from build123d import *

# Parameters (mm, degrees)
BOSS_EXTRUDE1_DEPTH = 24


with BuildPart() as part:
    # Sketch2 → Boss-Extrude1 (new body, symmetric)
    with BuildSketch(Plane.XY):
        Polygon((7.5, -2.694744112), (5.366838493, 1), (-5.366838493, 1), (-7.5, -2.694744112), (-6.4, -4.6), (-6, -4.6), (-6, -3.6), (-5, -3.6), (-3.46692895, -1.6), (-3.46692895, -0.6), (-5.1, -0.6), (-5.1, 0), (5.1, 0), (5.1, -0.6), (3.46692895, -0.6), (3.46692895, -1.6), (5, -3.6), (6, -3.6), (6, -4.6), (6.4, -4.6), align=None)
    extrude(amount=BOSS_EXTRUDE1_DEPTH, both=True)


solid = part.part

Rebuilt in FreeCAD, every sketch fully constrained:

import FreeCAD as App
import Part
import Sketcher

V = App.Vector
Q = App.Units.Quantity

doc = App.newDocument("Part")
body = doc.addObject("PartDesign::Body", "Body")

sketch1 = body.newObject("Sketcher::SketchObject", "Sketch")
sketch1.AttachmentSupport = (doc.getObject("XY_Plane"), [""])
sketch1.MapMode = "FlatFace"
sketch1.addGeometry([
    Part.LineSegment(V(7.5, -2.69, 0), V(5.37, 1, 0)),
    Part.LineSegment(V(5.37, 1, 0), V(-5.37, 1, 0)),
    Part.LineSegment(V(-5.37, 1, 0), V(-7.5, -2.69, 0)),
    Part.LineSegment(V(-7.5, -2.69, 0), V(-6.4, -4.6, 0)),
    Part.LineSegment(V(-6.4, -4.6, 0), V(-6, -4.6, 0)),
    Part.LineSegment(V(-6, -4.6, 0), V(-6, -3.6, 0)),
    Part.LineSegment(V(-6, -3.6, 0), V(-5, -3.6, 0)),
    Part.LineSegment(V(-5, -3.6, 0), V(-3.47, -1.6, 0)),
    Part.LineSegment(V(-3.47, -1.6, 0), V(-3.47, -0.6, 0)),
    Part.LineSegment(V(-3.47, -0.6, 0), V(-5.1, -0.6, 0)),
    Part.LineSegment(V(-5.1, -0.6, 0), V(-5.1, 0, 0)),
    Part.LineSegment(V(-5.1, 0, 0), V(5.1, 0, 0)),
    Part.LineSegment(V(5.1, 0, 0), V(5.1, -0.6, 0)),
    Part.LineSegment(V(5.1, -0.6, 0), V(3.47, -0.6, 0)),
    Part.LineSegment(V(3.47, -0.6, 0), V(3.47, -1.6, 0)),
    Part.LineSegment(V(3.47, -1.6, 0), V(5, -3.6, 0)),
    Part.LineSegment(V(5, -3.6, 0), V(6, -3.6, 0)),
    Part.LineSegment(V(6, -3.6, 0), V(6, -4.6, 0)),
    Part.LineSegment(V(6, -4.6, 0), V(6.4, -4.6, 0)),
    Part.LineSegment(V(6.4, -4.6, 0), V(7.5, -2.69, 0)),
], False)
sketch1.addConstraint([
    Sketcher.Constraint("Coincident", 0, 2, 1, 1),
    Sketcher.Constraint("Coincident", 1, 2, 2, 1),
    Sketcher.Constraint("Coincident", 2, 2, 3, 1),
    Sketcher.Constraint("Coincident", 3, 2, 4, 1),
    Sketcher.Constraint("Coincident", 4, 2, 5, 1),
    Sketcher.Constraint("Coincident", 5, 2, 6, 1),
    Sketcher.Constraint("Coincident", 6, 2, 7, 1),
    Sketcher.Constraint("Coincident", 7, 2, 8, 1),
    Sketcher.Constraint("Coincident", 8, 2, 9, 1),
    Sketcher.Constraint("Coincident", 9, 2, 10, 1),
    Sketcher.Constraint("Coincident", 10, 2, 11, 1),
    Sketcher.Constraint("Coincident", 11, 2, 12, 1),
    Sketcher.Constraint("Coincident", 12, 2, 13, 1),
    Sketcher.Constraint("Coincident", 13, 2, 14, 1),
    Sketcher.Constraint("Coincident", 14, 2, 15, 1),
    Sketcher.Constraint("Coincident", 15, 2, 16, 1),
    Sketcher.Constraint("Coincident", 16, 2, 17, 1),
    Sketcher.Constraint("Coincident", 17, 2, 18, 1),
    Sketcher.Constraint("Coincident", 18, 2, 19, 1),
    Sketcher.Constraint("Coincident", 19, 2, 0, 1),
    Sketcher.Constraint("Horizontal", 1),
    Sketcher.Constraint("Horizontal", 4),
    Sketcher.Constraint("Vertical", 5),
    Sketcher.Constraint("Horizontal", 6),
    Sketcher.Constraint("Vertical", 8),
    Sketcher.Constraint("Horizontal", 9),
    Sketcher.Constraint("Vertical", 10),
    Sketcher.Constraint("Horizontal", 11),
    Sketcher.Constraint("Vertical", 12),
    Sketcher.Constraint("Horizontal", 13),
    Sketcher.Constraint("Vertical", 14),
    Sketcher.Constraint("Horizontal", 16),
    Sketcher.Constraint("Vertical", 17),
    Sketcher.Constraint("Horizontal", 18),
    Sketcher.Constraint("Symmetric", 10, 2, 11, 2, -1, 1),
    Sketcher.Constraint("Symmetric", 8, 2, 13, 2, -2),
    Sketcher.Constraint("Symmetric", 6, 2, 15, 2, -2),
    Sketcher.Constraint("Symmetric", 4, 2, 17, 2, -2),
    Sketcher.Constraint("Symmetric", 2, 2, 19, 2, -2),
    Sketcher.Constraint("Parallel", 0, 3),
    Sketcher.Constraint("Parallel", 2, 19),
    Sketcher.Constraint("Horizontal", 7, 2, 14, 2),
    Sketcher.Constraint("Equal", 4, 18),
    Sketcher.Constraint("Equal", 16, 5),
    Sketcher.Constraint("Equal", 5, 8),
    Sketcher.Constraint("DistanceX", 6, 1, 6, 2, 1.0),
    Sketcher.Constraint("Angle", 0, Q("120 deg")),
    Sketcher.Constraint("DistanceX", 4, 1, 4, 2, 0.4),
    Sketcher.Constraint("DistanceX", 11, 1, 11, 2, 10.2),
    Sketcher.Constraint("DistanceY", 10, 1, 10, 2, 0.6),
    Sketcher.Constraint("DistanceY", -1, 1, 0, 2, 1.0),
    Sketcher.Constraint("DistanceX", 4, 2, -1, 1, 6.0),
    Sketcher.Constraint("DistanceY", 6, 2, 7, 2, 2.0),
    Sketcher.Constraint("Distance", 3, 2.2),
    Sketcher.Constraint("DistanceX", 9, 2, 9, 1, 1.633071),
])
pad1 = body.newObject("PartDesign::Pad", "Pad")
pad1.Profile = sketch1
pad1.Length = 48
pad1.Midplane = True

doc.recompute()
